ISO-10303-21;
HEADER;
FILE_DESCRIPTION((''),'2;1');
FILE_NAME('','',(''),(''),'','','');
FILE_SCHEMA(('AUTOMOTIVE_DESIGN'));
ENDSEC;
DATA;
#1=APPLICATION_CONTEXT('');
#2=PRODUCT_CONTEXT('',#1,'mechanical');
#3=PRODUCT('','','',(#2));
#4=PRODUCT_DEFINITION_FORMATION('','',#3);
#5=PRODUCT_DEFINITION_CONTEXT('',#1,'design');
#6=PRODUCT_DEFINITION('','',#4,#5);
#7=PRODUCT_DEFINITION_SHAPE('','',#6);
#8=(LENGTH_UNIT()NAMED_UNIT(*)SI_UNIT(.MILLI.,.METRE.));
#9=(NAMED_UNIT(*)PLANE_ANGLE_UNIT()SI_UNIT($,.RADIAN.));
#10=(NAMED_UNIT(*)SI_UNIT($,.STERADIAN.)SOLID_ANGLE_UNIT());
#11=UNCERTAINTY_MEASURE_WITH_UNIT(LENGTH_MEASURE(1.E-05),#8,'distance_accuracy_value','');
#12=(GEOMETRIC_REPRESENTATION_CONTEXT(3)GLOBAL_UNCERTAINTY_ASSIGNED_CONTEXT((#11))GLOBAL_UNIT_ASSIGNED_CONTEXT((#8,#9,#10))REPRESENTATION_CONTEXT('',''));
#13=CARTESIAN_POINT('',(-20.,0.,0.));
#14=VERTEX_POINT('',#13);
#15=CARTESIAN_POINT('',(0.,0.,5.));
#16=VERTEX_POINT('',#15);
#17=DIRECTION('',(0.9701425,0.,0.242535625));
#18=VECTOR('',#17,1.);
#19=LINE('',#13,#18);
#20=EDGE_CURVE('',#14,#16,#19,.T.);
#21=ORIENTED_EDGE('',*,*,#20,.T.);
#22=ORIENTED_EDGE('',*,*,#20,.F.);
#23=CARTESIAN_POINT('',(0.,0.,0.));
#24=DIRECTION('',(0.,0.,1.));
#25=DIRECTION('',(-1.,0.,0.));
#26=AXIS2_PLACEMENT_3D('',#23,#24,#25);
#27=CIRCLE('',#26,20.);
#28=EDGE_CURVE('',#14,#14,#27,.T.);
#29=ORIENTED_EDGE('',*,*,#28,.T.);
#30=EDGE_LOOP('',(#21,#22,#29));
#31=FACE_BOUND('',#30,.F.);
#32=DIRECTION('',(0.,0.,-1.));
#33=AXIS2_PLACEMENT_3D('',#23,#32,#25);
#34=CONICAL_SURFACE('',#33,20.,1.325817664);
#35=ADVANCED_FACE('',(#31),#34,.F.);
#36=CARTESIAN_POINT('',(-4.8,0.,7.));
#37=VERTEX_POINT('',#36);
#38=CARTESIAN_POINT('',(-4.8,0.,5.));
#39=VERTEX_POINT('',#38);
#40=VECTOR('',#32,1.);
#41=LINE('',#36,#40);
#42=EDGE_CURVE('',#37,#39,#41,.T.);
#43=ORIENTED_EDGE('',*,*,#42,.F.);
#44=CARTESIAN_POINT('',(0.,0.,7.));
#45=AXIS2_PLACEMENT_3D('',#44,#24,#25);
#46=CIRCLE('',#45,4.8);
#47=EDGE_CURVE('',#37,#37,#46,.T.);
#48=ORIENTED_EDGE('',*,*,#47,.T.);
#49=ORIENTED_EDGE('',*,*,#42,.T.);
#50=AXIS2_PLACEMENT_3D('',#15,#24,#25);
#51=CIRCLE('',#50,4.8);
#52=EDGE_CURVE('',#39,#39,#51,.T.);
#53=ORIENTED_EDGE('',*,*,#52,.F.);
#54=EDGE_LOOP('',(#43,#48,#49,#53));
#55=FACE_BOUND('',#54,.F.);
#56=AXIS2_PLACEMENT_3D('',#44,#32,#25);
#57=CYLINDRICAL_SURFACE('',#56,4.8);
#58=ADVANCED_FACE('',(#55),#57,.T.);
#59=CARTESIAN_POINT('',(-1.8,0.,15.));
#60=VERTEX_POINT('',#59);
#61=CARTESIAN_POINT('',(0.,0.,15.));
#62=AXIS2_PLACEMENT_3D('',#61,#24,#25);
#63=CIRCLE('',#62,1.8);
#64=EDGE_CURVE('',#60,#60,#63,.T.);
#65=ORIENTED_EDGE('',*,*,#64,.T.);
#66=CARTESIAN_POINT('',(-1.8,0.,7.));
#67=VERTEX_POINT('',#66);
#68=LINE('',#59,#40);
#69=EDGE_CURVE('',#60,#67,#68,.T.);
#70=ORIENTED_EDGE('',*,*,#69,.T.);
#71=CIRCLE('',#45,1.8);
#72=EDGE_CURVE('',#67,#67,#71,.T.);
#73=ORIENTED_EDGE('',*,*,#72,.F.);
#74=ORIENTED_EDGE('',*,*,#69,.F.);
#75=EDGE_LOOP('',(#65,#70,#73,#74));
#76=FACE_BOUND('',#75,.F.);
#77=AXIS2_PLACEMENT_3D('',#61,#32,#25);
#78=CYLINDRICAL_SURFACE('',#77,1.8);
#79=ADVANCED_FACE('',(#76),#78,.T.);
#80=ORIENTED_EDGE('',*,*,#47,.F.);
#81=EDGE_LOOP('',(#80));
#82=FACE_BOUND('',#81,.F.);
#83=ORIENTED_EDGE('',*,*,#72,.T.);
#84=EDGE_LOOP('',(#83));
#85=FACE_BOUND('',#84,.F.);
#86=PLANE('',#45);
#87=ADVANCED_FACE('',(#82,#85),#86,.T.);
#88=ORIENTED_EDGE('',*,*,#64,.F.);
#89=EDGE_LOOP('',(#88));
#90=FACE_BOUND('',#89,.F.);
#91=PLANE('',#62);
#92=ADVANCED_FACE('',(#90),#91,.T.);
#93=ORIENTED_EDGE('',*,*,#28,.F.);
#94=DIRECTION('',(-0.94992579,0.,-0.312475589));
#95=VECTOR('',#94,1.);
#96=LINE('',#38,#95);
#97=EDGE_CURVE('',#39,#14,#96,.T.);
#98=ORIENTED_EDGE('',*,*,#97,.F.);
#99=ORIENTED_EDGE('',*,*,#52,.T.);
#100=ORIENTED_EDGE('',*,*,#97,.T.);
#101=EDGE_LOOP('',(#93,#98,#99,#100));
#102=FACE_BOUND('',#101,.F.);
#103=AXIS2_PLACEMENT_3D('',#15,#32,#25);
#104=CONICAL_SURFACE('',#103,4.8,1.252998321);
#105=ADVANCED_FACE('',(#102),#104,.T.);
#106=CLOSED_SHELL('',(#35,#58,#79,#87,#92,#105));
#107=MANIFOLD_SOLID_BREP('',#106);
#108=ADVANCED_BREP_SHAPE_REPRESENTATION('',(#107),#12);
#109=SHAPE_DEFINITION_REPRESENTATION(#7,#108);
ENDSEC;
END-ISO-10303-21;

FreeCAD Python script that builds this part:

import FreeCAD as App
import Part
import Sketcher
from FreeCAD import Vector


def add_polygon(sketch, points):
    """Adds a closed chain of lines whose ends are joined by coincident constraints."""
    first, n = sketch.GeometryCount, len(points)
    for a, b in zip(points, points[1:] + points[:1]):
        sketch.addGeometry(Part.LineSegment(App.Vector(*a, 0), App.Vector(*b, 0)), False)
    for i in range(n):
        sketch.addConstraint(Sketcher.Constraint("Coincident", first + i, 2, first + (i + 1) % n, 1))

doc = App.newDocument("Part")
params = doc.addObject("Spreadsheet::Sheet", "Params")
for row, (alias, value) in enumerate([
    ("sketch1_width", "3 mm"),
    ("sketch1_height", "8 mm"),
    ("sketch1_height2", "2 mm"),
    ("sketch1_width2", "1.8 mm"),
    ("revolution_angle", "360 deg"),
], start=1):
    params.set(f"A{row}", alias)
    params.set(f"B{row}", "=" + value)
    params.setAlias(f"B{row}", alias)

body = doc.addObject("PartDesign::Body", "Body")

sketch1 = body.newObject("Sketcher::SketchObject", "Sketch")
sketch1.AttachmentSupport = (doc.getObject("XZ_Plane"), [""])
sketch1.MapMode = "FlatFace"
add_polygon(sketch1, [(0, 15), (-1.8, 15), (-1.8, 7), (-4.8, 7), (-4.8, 5), (-20, 0), (0, 5)])
sketch1.addConstraint(Sketcher.Constraint("Horizontal", 0))
sketch1.addConstraint(Sketcher.Constraint("Vertical", 1))
sketch1.addConstraint(Sketcher.Constraint("Horizontal", 2))
sketch1.addConstraint(Sketcher.Constraint("Vertical", 3))
sketch1.addConstraint(Sketcher.Constraint("Vertical", 6))
sketch1.addConstraint(Sketcher.Constraint("PointOnObject", 4, 2, -1))
sketch1.addConstraint(Sketcher.Constraint("PointOnObject", 5, 2, -2))
sketch1.addConstraint(Sketcher.Constraint("Horizontal", 3, 2, 5, 2))
sketch1.addConstraint(Sketcher.Constraint("DistanceX", 2, 2, 2, 1, 3.0))
sketch1.addConstraint(Sketcher.Constraint("DistanceY", 1, 2, 1, 1, 8.0))
sketch1.addConstraint(Sketcher.Constraint("DistanceY", 3, 2, 3, 1, 2.0))
sketch1.addConstraint(Sketcher.Constraint("DistanceX", 0, 2, 0, 1, 1.8))
sketch1.addConstraint(Sketcher.Constraint("DistanceY", -1, 1, 0, 2, 15.0))
sketch1.addConstraint(Sketcher.Constraint("DistanceX", 4, 2, -1, 1, 20.0))
sketch1.setExpression("Constraints[15]", "Params.sketch1_width")
sketch1.setExpression("Constraints[16]", "Params.sketch1_height")
sketch1.setExpression("Constraints[17]", "Params.sketch1_height2")
sketch1.setExpression("Constraints[18]", "Params.sketch1_width2")
revolution = body.newObject("PartDesign::Revolution", "Revolution")
revolution.Profile = sketch1
revolution.ReferenceAxis = (sketch1, ["V_Axis"])
revolution.setExpression("Angle", "Params.revolution_angle")

doc.recompute()
